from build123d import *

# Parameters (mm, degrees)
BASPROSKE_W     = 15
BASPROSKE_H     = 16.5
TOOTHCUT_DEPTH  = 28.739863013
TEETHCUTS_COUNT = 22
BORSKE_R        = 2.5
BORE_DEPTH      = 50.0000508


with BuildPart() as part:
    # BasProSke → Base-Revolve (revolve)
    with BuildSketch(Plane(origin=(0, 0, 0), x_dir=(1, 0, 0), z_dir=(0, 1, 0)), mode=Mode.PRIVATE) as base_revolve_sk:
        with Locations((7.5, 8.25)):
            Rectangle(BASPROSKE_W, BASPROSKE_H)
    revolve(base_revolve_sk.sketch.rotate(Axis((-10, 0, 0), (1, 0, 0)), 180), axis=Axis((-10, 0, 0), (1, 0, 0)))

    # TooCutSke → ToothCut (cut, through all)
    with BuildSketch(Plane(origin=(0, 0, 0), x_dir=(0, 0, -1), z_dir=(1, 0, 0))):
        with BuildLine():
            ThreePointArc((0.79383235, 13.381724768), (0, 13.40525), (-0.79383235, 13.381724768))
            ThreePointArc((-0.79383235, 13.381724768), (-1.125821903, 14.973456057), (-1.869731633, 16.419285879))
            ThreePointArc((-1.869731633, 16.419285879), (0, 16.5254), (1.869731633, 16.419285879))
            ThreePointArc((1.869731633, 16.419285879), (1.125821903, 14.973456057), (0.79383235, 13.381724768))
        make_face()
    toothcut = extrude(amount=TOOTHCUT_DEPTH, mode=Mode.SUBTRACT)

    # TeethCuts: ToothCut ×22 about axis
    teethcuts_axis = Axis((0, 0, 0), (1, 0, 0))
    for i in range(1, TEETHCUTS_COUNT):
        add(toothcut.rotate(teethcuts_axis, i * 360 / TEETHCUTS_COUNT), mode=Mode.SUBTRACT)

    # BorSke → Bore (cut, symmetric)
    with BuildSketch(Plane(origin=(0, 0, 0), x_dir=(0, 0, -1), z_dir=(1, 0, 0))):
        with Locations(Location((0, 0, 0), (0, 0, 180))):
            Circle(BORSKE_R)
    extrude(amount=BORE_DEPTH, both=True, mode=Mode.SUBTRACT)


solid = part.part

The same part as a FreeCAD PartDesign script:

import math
import FreeCAD as App
import Part
import Sketcher

V = App.Vector


def add_polygon(sketch, points):
    """Adds a closed chain of lines whose ends are joined by coincident constraints."""
    first, n = sketch.GeometryCount, len(points)
    for a, b in zip(points, points[1:] + points[:1]):
        sketch.addGeometry(Part.LineSegment(App.Vector(*a, 0), App.Vector(*b, 0)), False)
    for i in range(n):
        sketch.addConstraint(Sketcher.Constraint("Coincident", first + i, 2, first + (i + 1) % n, 1))

doc = App.newDocument("Part")
body = doc.addObject("PartDesign::Body", "Body")

# Sketch on XZ plane
sketch1 = doc.addObject("Sketcher::SketchObject", "Sketch")
body.addObject(sketch1)
sketch1.AttachmentSupport = (doc.XZ_Plane, [""])
sketch1.MapMode = "FlatFace"
add_polygon(sketch1, [(0, -16), (0, 0), (15, 0), (15, -16)])  # lines 0-3
sketch1.addConstraint([
    Sketcher.Constraint("Vertical", 0),
    Sketcher.Constraint("Horizontal", 1),
    Sketcher.Constraint("Vertical", 2),
    Sketcher.Constraint("Horizontal", 3),
    Sketcher.Constraint("Coincident", 0, 2, -1, 1),
    Sketcher.Constraint("DistanceX", 1, 1, 1, 2, 15.0),
    Sketcher.Constraint("DistanceY", 0, 1, 0, 2, 16.5),
])
revolution = doc.addObject("PartDesign::Revolution", "Revolution")
body.addObject(revolution)
revolution.Profile = sketch1
revolution.ReferenceAxis = (sketch1, ["H_Axis"])
revolution.Angle = 360

# Sketch on YZ plane
sketch2 = doc.addObject("Sketcher::SketchObject", "Sketch001")
body.addObject(sketch2)
sketch2.AttachmentSupport = (doc.YZ_Plane, [""])
sketch2.MapMode = "FlatFace"
sketch2.addGeometry([
    Part.ArcOfCircle(Part.Circle(V(0, 0, 0), V(0, 0, 1), 13.4), math.radians(-3.39), math.radians(3.39)),
    Part.ArcOfCircle(Part.Circle(V(13, -6.8, 0), V(0, 0, 1), 6), math.radians(55), math.radians(86)),
    Part.ArcOfCircle(Part.Circle(V(0, 0, 0), V(0, 0, 1), 16.5), math.radians(-6.5), math.radians(6.5)),
    Part.ArcOfCircle(Part.Circle(V(13, 6.8, 0), V(0, 0, 1), 6), math.radians(-86), math.radians(-55)),
], False)
sketch2.addConstraint([
    Sketcher.Constraint("Coincident", 0, 1, 1, 2),
    Sketcher.Constraint("Coincident", 1, 1, 2, 1),
    Sketcher.Constraint("Coincident", 2, 2, 3, 2),
    Sketcher.Constraint("Coincident", 3, 1, 0, 2),
    Sketcher.Constraint("Coincident", 0, 3, -1, 1),
    Sketcher.Constraint("Coincident", 2, 3, -1, 1),
    Sketcher.Constraint("Equal", 1, 3),
    Sketcher.Constraint("Symmetric", 1, 3, 3, 3, -1),
    Sketcher.Constraint("Radius", 1, 6.05),
    Sketcher.Constraint("Radius", 2, 16.5254),
    Sketcher.Constraint("Radius", 0, 13.40525),
    Sketcher.Constraint("DistanceY", 1, 1, 0, 1, 1.075899),
    Sketcher.Constraint("DistanceX", -1, 1, 1, 3, 12.95352),
])
pocket1 = doc.addObject("PartDesign::Pocket", "Pocket")
body.addObject(pocket1)
pocket1.Profile = sketch2
pocket1.Type = "ThroughAll"
pocket1.Reversed = True
doc.recompute()

polarpattern = doc.addObject("PartDesign::PolarPattern", "PolarPattern")
body.addObject(polarpattern)
polarpattern.Originals = [pocket1]
polarpattern.Axis = (doc.X_Axis, [""])
polarpattern.Angle = 360
polarpattern.Occurrences = 22
body.Tip = polarpattern

# Sketch on YZ plane
sketch3 = doc.addObject("Sketcher::SketchObject", "Sketch002")
body.addObject(sketch3)
sketch3.AttachmentSupport = (doc.YZ_Plane, [""])
sketch3.MapMode = "FlatFace"
sketch3.addGeometry(Part.Circle(V(0, 0, 0), V(0, 0, 1), 2.5), False)
sketch3.addConstraint([
    Sketcher.Constraint("Coincident", 0, 3, -1, 1),
    Sketcher.Constraint("Diameter", 0, 5.0),
])
pocket2 = doc.addObject("PartDesign::Pocket", "Pocket001")
body.addObject(pocket2)
pocket2.Profile = sketch3
pocket2.Length = 100.000102
pocket2.Midplane = True

doc.recompute()
